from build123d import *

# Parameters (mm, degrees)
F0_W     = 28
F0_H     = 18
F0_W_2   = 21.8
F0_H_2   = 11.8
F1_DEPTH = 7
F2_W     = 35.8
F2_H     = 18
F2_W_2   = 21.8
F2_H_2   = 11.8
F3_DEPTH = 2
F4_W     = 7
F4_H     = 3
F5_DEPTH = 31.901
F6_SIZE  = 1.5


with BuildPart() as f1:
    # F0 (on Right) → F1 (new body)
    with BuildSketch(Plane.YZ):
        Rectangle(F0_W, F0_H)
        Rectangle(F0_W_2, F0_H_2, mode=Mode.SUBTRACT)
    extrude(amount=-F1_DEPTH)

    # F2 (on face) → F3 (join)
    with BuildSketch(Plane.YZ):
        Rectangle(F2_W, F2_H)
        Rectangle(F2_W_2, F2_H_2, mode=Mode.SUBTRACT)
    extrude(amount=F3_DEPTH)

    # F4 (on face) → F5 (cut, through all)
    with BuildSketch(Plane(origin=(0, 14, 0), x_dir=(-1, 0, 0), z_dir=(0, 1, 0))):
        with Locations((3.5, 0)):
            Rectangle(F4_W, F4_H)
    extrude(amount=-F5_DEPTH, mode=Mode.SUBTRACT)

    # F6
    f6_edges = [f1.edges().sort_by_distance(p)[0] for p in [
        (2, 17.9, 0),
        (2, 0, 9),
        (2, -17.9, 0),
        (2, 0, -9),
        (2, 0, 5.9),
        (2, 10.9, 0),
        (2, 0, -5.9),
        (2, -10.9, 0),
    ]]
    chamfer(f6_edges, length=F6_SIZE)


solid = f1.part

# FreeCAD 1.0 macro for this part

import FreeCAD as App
import Part
import Sketcher
from FreeCAD import Vector
Q = App.Units.Quantity


def edges_at(feature, points):
    """Names of the edges that pass closest to the given points."""
    edges = feature.Shape.Edges
    near = lambda p: min(range(len(edges)), key=lambda i: edges[i].distToShape(Part.Vertex(*p))[0])
    return sorted({f"Edge{near(p) + 1}" for p in points})

doc = App.newDocument("Part")
params = doc.addObject("Spreadsheet::Sheet", "Params")
for row, (alias, value) in enumerate([
    ("sketch1_width", "28 mm"),
    ("sketch1_height", "18 mm"),
    ("sketch1_width2", "21.8 mm"),
    ("sketch1_height2", "11.8 mm"),
    ("pad1_length", "7 mm"),
    ("sketch2_height", "18 mm"),
    ("sketch2_width", "35.8 mm"),
    ("sketch2_width2", "21.8 mm"),
    ("sketch2_height2", "11.8 mm"),
    ("pad2_length", "2 mm"),
    ("sketch3_width", "7 mm"),
    ("sketch3_height", "3 mm"),
    ("chamfer_size", "1.5 mm"),
], start=1):
    params.set(f"A{row}", alias)
    params.set(f"B{row}", "=" + value)
    params.setAlias(f"B{row}", alias)

body = doc.addObject("PartDesign::Body", "Body")

# Sketch on YZ plane
sketch1 = body.newObject("Sketcher::SketchObject", "Sketch")
sketch1.AttachmentSupport = (doc.getObject("YZ_Plane"), [""])
sketch1.MapMode = "FlatFace"
sketch1.addGeometry(Part.LineSegment(Vector(-14, 9, 0), Vector(-14, -9, 0)), False)
sketch1.addGeometry(Part.LineSegment(Vector(-14, -9, 0), Vector(14, -9, 0)), False)
sketch1.addGeometry(Part.LineSegment(Vector(14, -9, 0), Vector(14, 9, 0)), False)
sketch1.addGeometry(Part.LineSegment(Vector(14, 9, 0), Vector(-14, 9, 0)), False)
sketch1.addGeometry(Part.LineSegment(Vector(10.9, -5.9, 0), Vector(-10.9, -5.9, 0)), False)
sketch1.addGeometry(Part.LineSegment(Vector(-10.9, -5.9, 0), Vector(-10.9, 5.9, 0)), False)
sketch1.addGeometry(Part.LineSegment(Vector(-10.9, 5.9, 0), Vector(10.9, 5.9, 0)), False)
sketch1.addGeometry(Part.LineSegment(Vector(10.9, 5.9, 0), Vector(10.9, -5.9, 0)), False)
sketch1.addConstraint(Sketcher.Constraint("Coincident", 0, 2, 1, 1))
sketch1.addConstraint(Sketcher.Constraint("Coincident", 1, 2, 2, 1))
sketch1.addConstraint(Sketcher.Constraint("Coincident", 2, 2, 3, 1))
sketch1.addConstraint(Sketcher.Constraint("Coincident", 3, 2, 0, 1))
sketch1.addConstraint(Sketcher.Constraint("Coincident", 4, 2, 5, 1))
sketch1.addConstraint(Sketcher.Constraint("Coincident", 5, 2, 6, 1))
sketch1.addConstraint(Sketcher.Constraint("Coincident", 6, 2, 7, 1))
sketch1.addConstraint(Sketcher.Constraint("Coincident", 7, 2, 4, 1))
sketch1.addConstraint(Sketcher.Constraint("Vertical", 0))
sketch1.addConstraint(Sketcher.Constraint("Horizontal", 1))
sketch1.addConstraint(Sketcher.Constraint("Vertical", 2))
sketch1.addConstraint(Sketcher.Constraint("Horizontal", 3))
sketch1.addConstraint(Sketcher.Constraint("Horizontal", 4))
sketch1.addConstraint(Sketcher.Constraint("Vertical", 5))
sketch1.addConstraint(Sketcher.Constraint("Horizontal", 6))
sketch1.addConstraint(Sketcher.Constraint("Vertical", 7))
sketch1.addConstraint(Sketcher.Constraint("Symmetric", 0, 2, 2, 2, -1, 1))
sketch1.addConstraint(Sketcher.Constraint("Symmetric", 4, 2, 6, 2, -1, 1))
sketch1.addConstraint(Sketcher.Constraint("DistanceX", 1, 1, 1, 2, Q("28 mm")))
sketch1.addConstraint(Sketcher.Constraint("DistanceY", 0, 2, 0, 1, Q("18 mm")))
sketch1.addConstraint(Sketcher.Constraint("DistanceX", 4, 2, 4, 1, Q("21.8 mm")))
sketch1.addConstraint(Sketcher.Constraint("DistanceY", 5, 1, 5, 2, Q("11.8 mm")))
sketch1.setExpression("Constraints[18]", "Params.sketch1_width")
sketch1.setExpression("Constraints[19]", "Params.sketch1_height")
sketch1.setExpression("Constraints[20]", "Params.sketch1_width2")
sketch1.setExpression("Constraints[21]", "Params.sketch1_height2")
pad1 = body.newObject("PartDesign::Pad", "Pad")
pad1.Profile = sketch1
pad1.setExpression("Length", "Params.pad1_length")
pad1.Reversed = True

# Sketch on YZ plane
sketch2 = body.newObject("Sketcher::SketchObject", "Sketch001")
sketch2.AttachmentSupport = (doc.getObject("YZ_Plane"), [""])
sketch2.MapMode = "FlatFace"
sketch2.addGeometry(Part.LineSegment(Vector(-17.9, 9, 0), Vector(-17.9, -9, 0)), False)
sketch2.addGeometry(Part.LineSegment(Vector(-17.9, -9, 0), Vector(17.9, -9, 0)), False)
sketch2.addGeometry(Part.LineSegment(Vector(17.9, -9, 0), Vector(17.9, 9, 0)), False)
sketch2.addGeometry(Part.LineSegment(Vector(17.9, 9, 0), Vector(-17.9, 9, 0)), False)
sketch2.addGeometry(Part.LineSegment(Vector(10.9, -5.9, 0), Vector(-10.9, -5.9, 0)), False)
sketch2.addGeometry(Part.LineSegment(Vector(-10.9, -5.9, 0), Vector(-10.9, 5.9, 0)), False)
sketch2.addGeometry(Part.LineSegment(Vector(-10.9, 5.9, 0), Vector(10.9, 5.9, 0)), False)
sketch2.addGeometry(Part.LineSegment(Vector(10.9, 5.9, 0), Vector(10.9, -5.9, 0)), False)
sketch2.addConstraint(Sketcher.Constraint("Coincident", 0, 2, 1, 1))
sketch2.addConstraint(Sketcher.Constraint("Coincident", 1, 2, 2, 1))
sketch2.addConstraint(Sketcher.Constraint("Coincident", 2, 2, 3, 1))
sketch2.addConstraint(Sketcher.Constraint("Coincident", 3, 2, 0, 1))
sketch2.addConstraint(Sketcher.Constraint("Coincident", 4, 2, 5, 1))
sketch2.addConstraint(Sketcher.Constraint("Coincident", 5, 2, 6, 1))
sketch2.addConstraint(Sketcher.Constraint("Coincident", 6, 2, 7, 1))
sketch2.addConstraint(Sketcher.Constraint("Coincident", 7, 2, 4, 1))
sketch2.addConstraint(Sketcher.Constraint("Vertical", 0))
sketch2.addConstraint(Sketcher.Constraint("Horizontal", 1))
sketch2.addConstraint(Sketcher.Constraint("Vertical", 2))
sketch2.addConstraint(Sketcher.Constraint("Horizontal", 3))
sketch2.addConstraint(Sketcher.Constraint("Horizontal", 4))
sketch2.addConstraint(Sketcher.Constraint("Vertical", 5))
sketch2.addConstraint(Sketcher.Constraint("Horizontal", 6))
sketch2.addConstraint(Sketcher.Constraint("Vertical", 7))
sketch2.addConstraint(Sketcher.Constraint("Symmetric", 0, 2, 2, 2, -1, 1))
sketch2.addConstraint(Sketcher.Constraint("Symmetric", 4, 2, 6, 2, -1, 1))
sketch2.addConstraint(Sketcher.Constraint("DistanceY", 0, 2, 0, 1, Q("18 mm")))
sketch2.addConstraint(Sketcher.Constraint("DistanceX", 1, 1, 1, 2, Q("35.8 mm")))
sketch2.addConstraint(Sketcher.Constraint("DistanceX", 4, 2, 4, 1, Q("21.8 mm")))
sketch2.addConstraint(Sketcher.Constraint("DistanceY", 5, 1, 5, 2, Q("11.8 mm")))
sketch2.setExpression("Constraints[18]", "Params.sketch2_height")
sketch2.setExpression("Constraints[19]", "Params.sketch2_width")
sketch2.setExpression("Constraints[20]", "Params.sketch2_width2")
sketch2.setExpression("Constraints[21]", "Params.sketch2_height2")
pad2 = body.newObject("PartDesign::Pad", "Pad001")
pad2.Profile = sketch2
pad2.setExpression("Length", "Params.pad2_length")

# Sketch on XZ plane
sketch3 = body.newObject("Sketcher::SketchObject", "Sketch002")
sketch3.AttachmentSupport = (doc.getObject("XZ_Plane"), [""])
sketch3.MapMode = "FlatFace"
sketch3.AttachmentOffset = App.Placement(Vector(0, 0, -14), App.Rotation())
sketch3.addGeometry(Part.LineSegment(Vector(0, 1.5, 0), Vector(0, -1.5, 0)), False)
sketch3.addGeometry(Part.LineSegment(Vector(0, -1.5, 0), Vector(-7, -1.5, 0)), False)
sketch3.addGeometry(Part.LineSegment(Vector(-7, -1.5, 0), Vector(-7, 1.5, 0)), False)
sketch3.addGeometry(Part.LineSegment(Vector(-7, 1.5, 0), Vector(0, 1.5, 0)), False)
sketch3.addConstraint(Sketcher.Constraint("Coincident", 0, 2, 1, 1))
sketch3.addConstraint(Sketcher.Constraint("Coincident", 1, 2, 2, 1))
sketch3.addConstraint(Sketcher.Constraint("Coincident", 2, 2, 3, 1))
sketch3.addConstraint(Sketcher.Constraint("Coincident", 3, 2, 0, 1))
sketch3.addConstraint(Sketcher.Constraint("Vertical", 0))
sketch3.addConstraint(Sketcher.Constraint("Horizontal", 1))
sketch3.addConstraint(Sketcher.Constraint("Vertical", 2))
sketch3.addConstraint(Sketcher.Constraint("Horizontal", 3))
sketch3.addConstraint(Sketcher.Constraint("Symmetric", 0, 2, 3, 2, -1, 1))
sketch3.addConstraint(Sketcher.Constraint("DistanceX", 1, 2, 1, 1, Q("7 mm")))
sketch3.addConstraint(Sketcher.Constraint("DistanceY", 0, 2, 0, 1, Q("3 mm")))
sketch3.setExpression("Constraints[9]", "Params.sketch3_width")
sketch3.setExpression("Constraints[10]", "Params.sketch3_height")
pocket1 = body.newObject("PartDesign::Pocket", "Pocket")
pocket1.Profile = sketch3
pocket1.Type = "ThroughAll"
pocket1.Reversed = True
doc.recompute()

chamfer = body.newObject("PartDesign::Chamfer", "Chamfer")
chamfer.Base = (pocket1, edges_at(pocket1, [
    (2, 17.9, 0),
    (2, 0, 9),
    (2, -17.9, 0),
    (2, 0, -9),
    (2, 0, 5.9),
    (2, 10.9, 0),
    (2, 0, -5.9),
    (2, -10.9, 0),
]))
chamfer.setExpression("Size", "Params.chamfer_size")

doc.recompute()
